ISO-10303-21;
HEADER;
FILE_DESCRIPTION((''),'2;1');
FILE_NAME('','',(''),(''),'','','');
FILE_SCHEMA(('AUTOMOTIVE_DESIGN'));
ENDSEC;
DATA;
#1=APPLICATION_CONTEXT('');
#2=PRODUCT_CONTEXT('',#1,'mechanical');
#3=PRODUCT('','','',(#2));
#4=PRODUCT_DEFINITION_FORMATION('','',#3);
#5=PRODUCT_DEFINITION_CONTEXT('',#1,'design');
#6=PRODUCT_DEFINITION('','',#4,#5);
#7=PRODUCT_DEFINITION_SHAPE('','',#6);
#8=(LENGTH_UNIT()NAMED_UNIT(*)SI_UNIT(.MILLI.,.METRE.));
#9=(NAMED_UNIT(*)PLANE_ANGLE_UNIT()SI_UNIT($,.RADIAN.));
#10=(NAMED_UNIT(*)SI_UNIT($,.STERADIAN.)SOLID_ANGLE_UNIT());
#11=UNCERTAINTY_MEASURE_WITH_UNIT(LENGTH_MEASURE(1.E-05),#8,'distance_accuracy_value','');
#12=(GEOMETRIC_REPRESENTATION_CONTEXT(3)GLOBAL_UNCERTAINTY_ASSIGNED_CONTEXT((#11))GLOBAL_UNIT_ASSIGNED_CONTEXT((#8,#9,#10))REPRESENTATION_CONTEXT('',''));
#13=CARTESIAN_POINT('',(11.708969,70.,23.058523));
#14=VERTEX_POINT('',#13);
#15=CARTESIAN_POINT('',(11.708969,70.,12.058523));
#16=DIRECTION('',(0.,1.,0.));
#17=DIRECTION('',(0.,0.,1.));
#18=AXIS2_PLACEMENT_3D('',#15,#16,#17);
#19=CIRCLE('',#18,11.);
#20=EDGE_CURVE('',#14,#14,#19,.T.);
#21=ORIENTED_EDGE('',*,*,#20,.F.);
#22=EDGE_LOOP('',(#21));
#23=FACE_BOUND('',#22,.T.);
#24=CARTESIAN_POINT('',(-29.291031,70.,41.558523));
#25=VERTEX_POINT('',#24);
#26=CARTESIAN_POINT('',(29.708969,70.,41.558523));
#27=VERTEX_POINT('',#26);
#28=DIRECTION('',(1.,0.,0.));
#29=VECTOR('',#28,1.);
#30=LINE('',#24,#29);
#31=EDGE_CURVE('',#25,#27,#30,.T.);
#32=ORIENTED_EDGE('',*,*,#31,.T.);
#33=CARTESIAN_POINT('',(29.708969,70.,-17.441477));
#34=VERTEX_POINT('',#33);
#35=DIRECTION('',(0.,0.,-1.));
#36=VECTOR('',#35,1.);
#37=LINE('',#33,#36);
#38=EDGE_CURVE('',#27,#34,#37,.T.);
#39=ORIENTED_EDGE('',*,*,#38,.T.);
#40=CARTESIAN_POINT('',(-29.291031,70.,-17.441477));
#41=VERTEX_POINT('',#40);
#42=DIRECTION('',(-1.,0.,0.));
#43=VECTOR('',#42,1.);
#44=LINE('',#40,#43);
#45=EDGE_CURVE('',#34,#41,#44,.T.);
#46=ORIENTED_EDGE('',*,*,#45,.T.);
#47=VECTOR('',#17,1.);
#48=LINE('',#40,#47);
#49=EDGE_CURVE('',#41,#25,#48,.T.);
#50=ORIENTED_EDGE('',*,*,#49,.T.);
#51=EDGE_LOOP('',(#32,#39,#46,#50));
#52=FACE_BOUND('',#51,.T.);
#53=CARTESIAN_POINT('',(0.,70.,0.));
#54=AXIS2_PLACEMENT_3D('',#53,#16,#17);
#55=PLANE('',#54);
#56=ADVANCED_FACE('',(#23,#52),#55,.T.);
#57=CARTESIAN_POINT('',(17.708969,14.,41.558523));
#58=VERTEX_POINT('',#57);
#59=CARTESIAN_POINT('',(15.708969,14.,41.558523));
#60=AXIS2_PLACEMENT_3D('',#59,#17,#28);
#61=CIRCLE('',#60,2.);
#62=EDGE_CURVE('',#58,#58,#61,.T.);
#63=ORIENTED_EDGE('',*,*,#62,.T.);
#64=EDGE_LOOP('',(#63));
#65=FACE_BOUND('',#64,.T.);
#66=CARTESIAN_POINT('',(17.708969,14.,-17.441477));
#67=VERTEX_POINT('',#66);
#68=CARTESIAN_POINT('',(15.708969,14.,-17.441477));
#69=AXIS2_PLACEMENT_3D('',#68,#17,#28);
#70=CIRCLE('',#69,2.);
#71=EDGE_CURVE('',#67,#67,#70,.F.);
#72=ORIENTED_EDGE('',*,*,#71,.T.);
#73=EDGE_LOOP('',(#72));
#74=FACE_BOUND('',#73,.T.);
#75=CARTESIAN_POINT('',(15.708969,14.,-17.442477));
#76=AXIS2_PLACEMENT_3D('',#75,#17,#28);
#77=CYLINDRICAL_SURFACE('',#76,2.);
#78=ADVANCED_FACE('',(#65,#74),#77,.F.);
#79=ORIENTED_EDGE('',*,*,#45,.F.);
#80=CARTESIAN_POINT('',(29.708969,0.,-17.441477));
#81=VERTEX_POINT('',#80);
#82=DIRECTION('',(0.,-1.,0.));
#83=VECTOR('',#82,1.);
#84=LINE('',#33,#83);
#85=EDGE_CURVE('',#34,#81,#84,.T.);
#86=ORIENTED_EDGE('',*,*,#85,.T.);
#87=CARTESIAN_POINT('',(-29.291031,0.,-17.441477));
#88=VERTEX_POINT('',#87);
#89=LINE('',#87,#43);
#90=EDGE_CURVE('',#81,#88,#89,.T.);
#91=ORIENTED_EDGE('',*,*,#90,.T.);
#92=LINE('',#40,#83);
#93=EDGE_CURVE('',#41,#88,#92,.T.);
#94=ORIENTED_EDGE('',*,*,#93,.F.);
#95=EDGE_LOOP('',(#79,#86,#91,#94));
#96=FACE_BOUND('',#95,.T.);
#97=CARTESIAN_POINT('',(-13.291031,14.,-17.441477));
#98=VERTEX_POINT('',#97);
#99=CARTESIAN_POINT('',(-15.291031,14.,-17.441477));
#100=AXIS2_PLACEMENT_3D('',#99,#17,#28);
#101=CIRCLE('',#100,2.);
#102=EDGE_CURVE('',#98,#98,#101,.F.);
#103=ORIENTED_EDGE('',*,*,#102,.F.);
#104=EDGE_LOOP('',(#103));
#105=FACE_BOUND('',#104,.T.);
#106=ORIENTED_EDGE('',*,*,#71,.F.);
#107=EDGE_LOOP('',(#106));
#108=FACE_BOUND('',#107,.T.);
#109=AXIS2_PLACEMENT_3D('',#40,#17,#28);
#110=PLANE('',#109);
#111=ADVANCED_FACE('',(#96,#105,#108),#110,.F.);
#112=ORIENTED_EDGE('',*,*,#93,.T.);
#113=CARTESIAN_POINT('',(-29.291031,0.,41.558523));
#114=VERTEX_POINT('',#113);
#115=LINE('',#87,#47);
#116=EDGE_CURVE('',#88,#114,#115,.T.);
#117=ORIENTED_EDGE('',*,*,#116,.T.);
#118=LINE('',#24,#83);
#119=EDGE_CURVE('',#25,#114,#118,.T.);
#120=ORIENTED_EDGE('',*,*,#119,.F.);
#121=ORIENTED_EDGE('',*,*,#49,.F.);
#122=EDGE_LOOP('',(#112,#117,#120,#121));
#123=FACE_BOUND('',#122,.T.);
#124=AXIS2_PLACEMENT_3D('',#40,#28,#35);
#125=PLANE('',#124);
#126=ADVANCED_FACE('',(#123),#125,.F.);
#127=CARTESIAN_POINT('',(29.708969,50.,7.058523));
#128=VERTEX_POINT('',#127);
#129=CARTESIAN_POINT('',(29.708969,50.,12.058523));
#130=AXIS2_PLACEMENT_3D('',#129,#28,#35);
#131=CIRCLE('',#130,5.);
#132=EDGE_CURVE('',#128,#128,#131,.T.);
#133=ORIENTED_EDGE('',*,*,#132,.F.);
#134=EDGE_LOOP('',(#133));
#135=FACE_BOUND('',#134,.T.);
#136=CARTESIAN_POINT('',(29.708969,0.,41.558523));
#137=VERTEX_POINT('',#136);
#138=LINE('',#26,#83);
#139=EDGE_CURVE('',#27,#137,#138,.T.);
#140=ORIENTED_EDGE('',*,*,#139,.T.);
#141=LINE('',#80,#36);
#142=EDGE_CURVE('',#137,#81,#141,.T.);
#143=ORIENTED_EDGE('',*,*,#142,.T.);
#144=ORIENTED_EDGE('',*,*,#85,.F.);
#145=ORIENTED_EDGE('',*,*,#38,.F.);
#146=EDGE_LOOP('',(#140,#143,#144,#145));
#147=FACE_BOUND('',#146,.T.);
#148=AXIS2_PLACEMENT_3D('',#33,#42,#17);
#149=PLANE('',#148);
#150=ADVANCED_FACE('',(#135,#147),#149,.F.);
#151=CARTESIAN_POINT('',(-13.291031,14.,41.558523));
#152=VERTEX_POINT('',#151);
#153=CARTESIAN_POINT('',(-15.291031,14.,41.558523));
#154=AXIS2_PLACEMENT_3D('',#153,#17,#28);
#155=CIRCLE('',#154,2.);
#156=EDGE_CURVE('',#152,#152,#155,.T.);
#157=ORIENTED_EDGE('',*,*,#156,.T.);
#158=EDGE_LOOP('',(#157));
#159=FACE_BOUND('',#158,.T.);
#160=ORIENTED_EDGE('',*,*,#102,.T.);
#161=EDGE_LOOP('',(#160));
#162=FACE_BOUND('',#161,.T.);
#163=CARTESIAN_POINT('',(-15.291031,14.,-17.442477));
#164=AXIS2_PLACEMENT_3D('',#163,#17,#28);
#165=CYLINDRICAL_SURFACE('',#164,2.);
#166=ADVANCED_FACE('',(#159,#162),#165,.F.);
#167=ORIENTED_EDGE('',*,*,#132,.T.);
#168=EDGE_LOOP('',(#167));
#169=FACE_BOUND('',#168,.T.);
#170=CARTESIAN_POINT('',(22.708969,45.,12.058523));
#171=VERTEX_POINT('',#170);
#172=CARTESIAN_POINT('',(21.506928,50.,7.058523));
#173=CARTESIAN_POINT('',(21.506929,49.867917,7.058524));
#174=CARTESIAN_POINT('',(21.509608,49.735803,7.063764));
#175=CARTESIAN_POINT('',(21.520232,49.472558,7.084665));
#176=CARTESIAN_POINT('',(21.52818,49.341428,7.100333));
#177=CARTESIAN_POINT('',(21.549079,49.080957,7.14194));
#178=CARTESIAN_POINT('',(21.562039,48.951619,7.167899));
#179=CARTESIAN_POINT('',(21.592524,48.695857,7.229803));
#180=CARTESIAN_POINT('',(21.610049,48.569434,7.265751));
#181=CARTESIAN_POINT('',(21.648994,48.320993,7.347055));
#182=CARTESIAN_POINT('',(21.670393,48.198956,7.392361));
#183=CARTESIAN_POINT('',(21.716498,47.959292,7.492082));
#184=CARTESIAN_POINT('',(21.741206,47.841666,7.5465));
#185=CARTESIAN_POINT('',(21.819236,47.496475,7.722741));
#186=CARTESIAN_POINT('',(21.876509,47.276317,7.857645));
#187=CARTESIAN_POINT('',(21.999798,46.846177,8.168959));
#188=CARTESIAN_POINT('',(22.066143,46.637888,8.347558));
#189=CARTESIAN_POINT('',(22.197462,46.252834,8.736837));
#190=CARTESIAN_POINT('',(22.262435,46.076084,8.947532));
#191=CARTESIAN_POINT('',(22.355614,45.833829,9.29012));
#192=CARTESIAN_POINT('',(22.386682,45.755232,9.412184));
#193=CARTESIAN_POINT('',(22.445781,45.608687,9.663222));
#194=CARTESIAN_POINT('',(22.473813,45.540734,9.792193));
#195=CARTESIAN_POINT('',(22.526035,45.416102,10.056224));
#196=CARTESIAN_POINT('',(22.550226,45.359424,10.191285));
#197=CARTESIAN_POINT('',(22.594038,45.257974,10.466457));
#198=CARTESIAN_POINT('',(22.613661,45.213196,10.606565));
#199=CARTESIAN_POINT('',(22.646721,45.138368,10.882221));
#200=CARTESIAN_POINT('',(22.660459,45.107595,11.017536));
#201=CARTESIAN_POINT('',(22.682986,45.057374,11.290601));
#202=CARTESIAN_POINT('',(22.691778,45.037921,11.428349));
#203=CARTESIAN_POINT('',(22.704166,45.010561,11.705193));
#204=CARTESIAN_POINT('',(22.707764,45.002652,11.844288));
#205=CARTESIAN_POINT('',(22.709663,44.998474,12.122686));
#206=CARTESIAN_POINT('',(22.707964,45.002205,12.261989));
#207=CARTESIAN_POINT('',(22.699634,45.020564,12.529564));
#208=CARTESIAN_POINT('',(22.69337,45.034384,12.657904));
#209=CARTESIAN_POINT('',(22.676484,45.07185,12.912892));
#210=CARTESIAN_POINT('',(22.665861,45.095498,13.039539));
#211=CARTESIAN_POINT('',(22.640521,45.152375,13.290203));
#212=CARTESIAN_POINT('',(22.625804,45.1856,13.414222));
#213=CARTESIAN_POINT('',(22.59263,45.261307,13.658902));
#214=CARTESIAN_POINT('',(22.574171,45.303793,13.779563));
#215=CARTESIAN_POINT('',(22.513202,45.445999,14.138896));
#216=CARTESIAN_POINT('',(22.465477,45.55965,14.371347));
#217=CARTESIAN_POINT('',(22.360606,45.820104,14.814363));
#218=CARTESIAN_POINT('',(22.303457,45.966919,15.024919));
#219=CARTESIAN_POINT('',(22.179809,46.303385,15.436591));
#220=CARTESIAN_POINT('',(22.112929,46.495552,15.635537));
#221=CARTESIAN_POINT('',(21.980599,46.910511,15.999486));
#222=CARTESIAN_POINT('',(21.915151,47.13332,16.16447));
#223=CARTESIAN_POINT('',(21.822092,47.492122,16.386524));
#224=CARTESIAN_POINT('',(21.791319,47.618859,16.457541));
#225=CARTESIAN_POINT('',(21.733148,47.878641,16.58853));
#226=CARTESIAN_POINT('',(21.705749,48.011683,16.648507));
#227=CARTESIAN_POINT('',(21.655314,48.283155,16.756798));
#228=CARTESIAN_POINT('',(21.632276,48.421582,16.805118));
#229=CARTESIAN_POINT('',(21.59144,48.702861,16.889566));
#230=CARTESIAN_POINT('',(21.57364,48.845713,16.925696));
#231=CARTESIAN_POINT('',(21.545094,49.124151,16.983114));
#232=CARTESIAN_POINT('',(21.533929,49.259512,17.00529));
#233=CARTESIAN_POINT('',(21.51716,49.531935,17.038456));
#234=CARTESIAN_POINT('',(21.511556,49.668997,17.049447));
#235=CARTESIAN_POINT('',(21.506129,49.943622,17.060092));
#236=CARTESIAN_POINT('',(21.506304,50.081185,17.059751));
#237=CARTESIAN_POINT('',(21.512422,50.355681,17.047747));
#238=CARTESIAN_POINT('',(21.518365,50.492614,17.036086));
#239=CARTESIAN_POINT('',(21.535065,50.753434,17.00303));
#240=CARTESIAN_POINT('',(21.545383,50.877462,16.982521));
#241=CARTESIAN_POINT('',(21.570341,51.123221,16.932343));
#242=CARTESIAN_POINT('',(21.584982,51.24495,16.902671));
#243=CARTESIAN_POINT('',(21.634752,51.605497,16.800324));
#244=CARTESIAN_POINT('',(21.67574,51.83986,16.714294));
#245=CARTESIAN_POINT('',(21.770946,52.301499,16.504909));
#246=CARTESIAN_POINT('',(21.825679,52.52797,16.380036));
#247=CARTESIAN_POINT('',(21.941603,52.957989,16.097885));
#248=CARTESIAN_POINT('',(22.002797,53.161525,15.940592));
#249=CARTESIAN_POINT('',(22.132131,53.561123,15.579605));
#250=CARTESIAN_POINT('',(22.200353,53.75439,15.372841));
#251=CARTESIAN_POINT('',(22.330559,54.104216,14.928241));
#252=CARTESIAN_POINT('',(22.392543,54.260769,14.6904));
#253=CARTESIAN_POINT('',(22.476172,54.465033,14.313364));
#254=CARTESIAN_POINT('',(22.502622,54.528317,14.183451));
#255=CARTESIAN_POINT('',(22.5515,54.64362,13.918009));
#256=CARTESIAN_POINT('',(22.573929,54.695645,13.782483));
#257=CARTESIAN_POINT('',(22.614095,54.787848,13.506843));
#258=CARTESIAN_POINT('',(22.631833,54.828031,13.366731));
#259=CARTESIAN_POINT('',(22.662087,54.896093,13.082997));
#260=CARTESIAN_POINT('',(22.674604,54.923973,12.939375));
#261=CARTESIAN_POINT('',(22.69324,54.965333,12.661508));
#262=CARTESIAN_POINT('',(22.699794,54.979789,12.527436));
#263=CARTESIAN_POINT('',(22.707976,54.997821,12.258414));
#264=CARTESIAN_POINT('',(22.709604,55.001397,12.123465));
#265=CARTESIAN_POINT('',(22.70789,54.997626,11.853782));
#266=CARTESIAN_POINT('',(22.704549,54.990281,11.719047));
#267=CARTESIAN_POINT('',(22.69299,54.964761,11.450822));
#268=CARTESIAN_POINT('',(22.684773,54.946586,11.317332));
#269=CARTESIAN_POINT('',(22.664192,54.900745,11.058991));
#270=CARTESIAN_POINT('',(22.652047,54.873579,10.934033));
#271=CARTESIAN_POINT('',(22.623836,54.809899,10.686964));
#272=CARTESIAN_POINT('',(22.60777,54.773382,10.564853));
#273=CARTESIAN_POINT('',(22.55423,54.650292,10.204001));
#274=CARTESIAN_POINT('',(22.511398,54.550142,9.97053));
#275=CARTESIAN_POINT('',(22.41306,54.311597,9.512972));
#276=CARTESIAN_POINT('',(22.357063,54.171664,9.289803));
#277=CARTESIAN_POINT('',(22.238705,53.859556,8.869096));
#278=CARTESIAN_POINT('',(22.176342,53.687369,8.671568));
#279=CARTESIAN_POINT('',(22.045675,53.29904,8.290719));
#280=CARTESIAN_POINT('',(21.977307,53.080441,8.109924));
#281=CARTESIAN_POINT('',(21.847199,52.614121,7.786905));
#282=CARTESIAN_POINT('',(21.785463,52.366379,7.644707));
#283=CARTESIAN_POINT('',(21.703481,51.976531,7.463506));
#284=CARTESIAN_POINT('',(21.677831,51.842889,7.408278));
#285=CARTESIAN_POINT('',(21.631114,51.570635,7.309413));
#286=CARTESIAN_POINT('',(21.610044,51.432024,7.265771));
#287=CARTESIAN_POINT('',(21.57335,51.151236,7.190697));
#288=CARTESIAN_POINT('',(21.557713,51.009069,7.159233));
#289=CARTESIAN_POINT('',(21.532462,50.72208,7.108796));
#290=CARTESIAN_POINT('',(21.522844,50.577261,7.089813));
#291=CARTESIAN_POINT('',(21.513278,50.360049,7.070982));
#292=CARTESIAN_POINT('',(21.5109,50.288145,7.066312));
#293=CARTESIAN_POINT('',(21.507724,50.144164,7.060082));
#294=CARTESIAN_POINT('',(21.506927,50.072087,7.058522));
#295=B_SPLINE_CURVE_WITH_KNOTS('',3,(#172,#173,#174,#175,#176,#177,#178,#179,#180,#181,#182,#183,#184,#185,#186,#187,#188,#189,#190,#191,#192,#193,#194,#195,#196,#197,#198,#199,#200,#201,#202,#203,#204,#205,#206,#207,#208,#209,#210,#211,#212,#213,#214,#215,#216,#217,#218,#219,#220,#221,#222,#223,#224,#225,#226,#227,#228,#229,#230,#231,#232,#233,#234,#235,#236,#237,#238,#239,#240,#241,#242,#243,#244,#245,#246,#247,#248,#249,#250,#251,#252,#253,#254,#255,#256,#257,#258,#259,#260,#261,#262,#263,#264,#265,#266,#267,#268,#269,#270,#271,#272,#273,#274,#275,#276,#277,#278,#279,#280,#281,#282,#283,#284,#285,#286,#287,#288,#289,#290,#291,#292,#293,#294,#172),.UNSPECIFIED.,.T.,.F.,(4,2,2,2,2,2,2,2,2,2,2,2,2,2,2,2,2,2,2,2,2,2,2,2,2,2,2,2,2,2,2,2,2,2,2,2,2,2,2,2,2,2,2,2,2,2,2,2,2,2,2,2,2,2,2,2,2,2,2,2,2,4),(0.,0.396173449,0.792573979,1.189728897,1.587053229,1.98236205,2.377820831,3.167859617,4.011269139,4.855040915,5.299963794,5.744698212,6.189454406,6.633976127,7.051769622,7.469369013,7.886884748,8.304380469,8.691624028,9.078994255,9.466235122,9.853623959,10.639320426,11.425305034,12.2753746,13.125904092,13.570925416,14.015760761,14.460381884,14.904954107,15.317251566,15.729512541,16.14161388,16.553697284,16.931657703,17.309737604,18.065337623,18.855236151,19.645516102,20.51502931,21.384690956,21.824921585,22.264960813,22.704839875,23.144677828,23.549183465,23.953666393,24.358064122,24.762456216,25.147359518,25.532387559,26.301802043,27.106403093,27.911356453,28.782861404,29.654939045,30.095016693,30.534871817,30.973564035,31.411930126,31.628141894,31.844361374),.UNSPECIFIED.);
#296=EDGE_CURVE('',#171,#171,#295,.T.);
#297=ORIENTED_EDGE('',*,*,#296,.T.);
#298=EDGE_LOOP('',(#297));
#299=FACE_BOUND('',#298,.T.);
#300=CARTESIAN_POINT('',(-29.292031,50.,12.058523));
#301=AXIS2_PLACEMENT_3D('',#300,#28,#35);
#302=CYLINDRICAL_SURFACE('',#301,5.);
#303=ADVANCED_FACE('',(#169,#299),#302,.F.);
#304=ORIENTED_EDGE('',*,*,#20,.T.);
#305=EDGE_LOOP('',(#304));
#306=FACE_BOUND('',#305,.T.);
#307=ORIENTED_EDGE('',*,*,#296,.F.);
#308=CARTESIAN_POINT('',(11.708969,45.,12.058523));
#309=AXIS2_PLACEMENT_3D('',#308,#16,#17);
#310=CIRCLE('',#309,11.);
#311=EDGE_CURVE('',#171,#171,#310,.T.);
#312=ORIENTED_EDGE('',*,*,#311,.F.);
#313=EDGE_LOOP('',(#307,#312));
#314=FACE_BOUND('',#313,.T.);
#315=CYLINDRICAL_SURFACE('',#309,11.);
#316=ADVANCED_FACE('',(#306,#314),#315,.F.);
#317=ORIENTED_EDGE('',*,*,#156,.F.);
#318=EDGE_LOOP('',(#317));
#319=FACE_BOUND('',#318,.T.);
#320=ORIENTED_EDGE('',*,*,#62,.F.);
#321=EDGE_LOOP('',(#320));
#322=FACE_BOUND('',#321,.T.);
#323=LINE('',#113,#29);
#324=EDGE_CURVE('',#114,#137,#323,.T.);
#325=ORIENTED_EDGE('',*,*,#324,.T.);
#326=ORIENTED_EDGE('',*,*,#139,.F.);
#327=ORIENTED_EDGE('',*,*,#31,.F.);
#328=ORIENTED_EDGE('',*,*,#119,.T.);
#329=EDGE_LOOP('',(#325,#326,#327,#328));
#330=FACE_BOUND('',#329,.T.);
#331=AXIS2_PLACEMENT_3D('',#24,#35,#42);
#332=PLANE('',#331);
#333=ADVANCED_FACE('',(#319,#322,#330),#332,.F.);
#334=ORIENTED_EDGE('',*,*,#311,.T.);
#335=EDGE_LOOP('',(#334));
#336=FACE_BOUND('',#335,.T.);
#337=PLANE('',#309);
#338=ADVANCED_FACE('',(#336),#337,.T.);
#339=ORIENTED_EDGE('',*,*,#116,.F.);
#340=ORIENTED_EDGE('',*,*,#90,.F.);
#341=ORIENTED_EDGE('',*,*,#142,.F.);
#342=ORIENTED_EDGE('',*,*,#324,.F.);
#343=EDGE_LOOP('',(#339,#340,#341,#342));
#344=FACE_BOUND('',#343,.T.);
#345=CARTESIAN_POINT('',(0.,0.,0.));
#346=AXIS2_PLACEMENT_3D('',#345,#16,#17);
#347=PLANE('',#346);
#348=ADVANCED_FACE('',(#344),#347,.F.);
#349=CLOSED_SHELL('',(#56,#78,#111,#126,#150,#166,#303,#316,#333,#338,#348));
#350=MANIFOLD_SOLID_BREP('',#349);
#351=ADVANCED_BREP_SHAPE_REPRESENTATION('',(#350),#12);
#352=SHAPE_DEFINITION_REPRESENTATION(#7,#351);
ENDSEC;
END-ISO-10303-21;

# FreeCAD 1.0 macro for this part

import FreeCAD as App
import Part
import Sketcher
from FreeCAD import Vector
Q = App.Units.Quantity


def add_polygon(sketch, points):
    """Adds a closed chain of lines whose ends are joined by coincident constraints."""
    first, n = sketch.GeometryCount, len(points)
    for a, b in zip(points, points[1:] + points[:1]):
        sketch.addGeometry(Part.LineSegment(App.Vector(*a, 0), App.Vector(*b, 0)), False)
    for i in range(n):
        sketch.addConstraint(Sketcher.Constraint("Coincident", first + i, 2, first + (i + 1) % n, 1))

doc = App.newDocument("Part")
body = doc.addObject("PartDesign::Body", "Body")

# Sketch on XZ plane
sketch1 = body.newObject("Sketcher::SketchObject", "Sketch")
sketch1.AttachmentSupport = (doc.getObject("XZ_Plane"), [""])
sketch1.MapMode = "FlatFace"
add_polygon(sketch1, [(-29, -17), (-29, 42), (30, 42), (30, -17)])  # lines 0-3
sketch1.addConstraint([
    Sketcher.Constraint("Vertical", 0),
    Sketcher.Constraint("Horizontal", 1),
    Sketcher.Constraint("Vertical", 2),
    Sketcher.Constraint("Horizontal", 3),
    Sketcher.Constraint("Equal", 3, 0),
    Sketcher.Constraint("DistanceX", 1, 1, 1, 2, Q("59 mm")),
    Sketcher.Constraint("DistanceX", 0, 2, -1, 1, Q("29.291031 mm")),
    Sketcher.Constraint("DistanceY", -1, 1, 0, 2, Q("41.558523 mm")),
])
pad1 = body.newObject("PartDesign::Pad", "Pad")
pad1.Profile = sketch1
pad1.Length = 70
pad1.Reversed = True

# Sketch on XY plane
sketch2 = body.newObject("Sketcher::SketchObject", "Sketch001")
sketch2.AttachmentSupport = (doc.getObject("XY_Plane"), [""])
sketch2.MapMode = "FlatFace"
sketch2.AttachmentOffset = App.Placement(Vector(0, 0, 41.558523), App.Rotation())
sketch2.addGeometry(Part.Circle(Vector(-15.3, 14, 0), Vector(0, 0, 1), 2), False)
sketch2.addConstraint([
    Sketcher.Constraint("Diameter", 0, Q("4 mm")),
    Sketcher.Constraint("DistanceY", -1, 1, 0, 3, Q("14 mm")),
    Sketcher.Constraint("DistanceX", 0, 3, -1, 1, Q("15.291031 mm")),
])
pocket1 = body.newObject("PartDesign::Pocket", "Pocket")
pocket1.Profile = sketch2
pocket1.Type = "UpToFirst"

# Sketch on XY plane
sketch3 = body.newObject("Sketcher::SketchObject", "Sketch002")
sketch3.AttachmentSupport = (doc.getObject("XY_Plane"), [""])
sketch3.MapMode = "FlatFace"
sketch3.AttachmentOffset = App.Placement(Vector(0, 0, 41.558523), App.Rotation())
sketch3.addGeometry(Part.Circle(Vector(15.7, 14, 0), Vector(0, 0, 1), 2), False)
sketch3.addConstraint([
    Sketcher.Constraint("Diameter", 0, Q("4 mm")),
    Sketcher.Constraint("DistanceY", -1, 1, 0, 3, Q("14 mm")),
    Sketcher.Constraint("DistanceX", -1, 1, 0, 3, Q("15.708969 mm")),
])
pocket2 = body.newObject("PartDesign::Pocket", "Pocket001")
pocket2.Profile = sketch3
pocket2.Type = "UpToFirst"

# Sketch on XZ plane
sketch4 = body.newObject("Sketcher::SketchObject", "Sketch003")
sketch4.AttachmentSupport = (doc.getObject("XZ_Plane"), [""])
sketch4.MapMode = "FlatFace"
sketch4.AttachmentOffset = App.Placement(Vector(0, 0, -70), App.Rotation())
sketch4.addGeometry(Part.Circle(Vector(12, 12, 0), Vector(0, 0, 1), 11), False)
sketch4.addConstraint([
    Sketcher.Constraint("Diameter", 0, Q("22 mm")),
    Sketcher.Constraint("DistanceX", -1, 1, 0, 3, Q("11.708969 mm")),
    Sketcher.Constraint("DistanceY", -1, 1, 0, 3, Q("12.058523 mm")),
])
pocket3 = body.newObject("PartDesign::Pocket", "Pocket002")
pocket3.Profile = sketch4
pocket3.Length = 25
pocket3.Reversed = True

# Sketch on YZ plane
sketch5 = body.newObject("Sketcher::SketchObject", "Sketch004")
sketch5.AttachmentSupport = (doc.getObject("YZ_Plane"), [""])
sketch5.MapMode = "FlatFace"
sketch5.AttachmentOffset = App.Placement(Vector(0, 0, 29.708969), App.Rotation())
sketch5.addGeometry(Part.Circle(Vector(50, 12, 0), Vector(0, 0, 1), 5), False)
sketch5.addConstraint([
    Sketcher.Constraint("Diameter", 0, Q("10 mm")),
    Sketcher.Constraint("DistanceX", -1, 1, 0, 3, Q("50 mm")),
    Sketcher.Constraint("DistanceY", -1, 1, 0, 3, Q("12.058523 mm")),
])
pocket4 = body.newObject("PartDesign::Pocket", "Pocket003")
pocket4.Profile = sketch5
pocket4.Length = 8.202041

doc.recompute()
